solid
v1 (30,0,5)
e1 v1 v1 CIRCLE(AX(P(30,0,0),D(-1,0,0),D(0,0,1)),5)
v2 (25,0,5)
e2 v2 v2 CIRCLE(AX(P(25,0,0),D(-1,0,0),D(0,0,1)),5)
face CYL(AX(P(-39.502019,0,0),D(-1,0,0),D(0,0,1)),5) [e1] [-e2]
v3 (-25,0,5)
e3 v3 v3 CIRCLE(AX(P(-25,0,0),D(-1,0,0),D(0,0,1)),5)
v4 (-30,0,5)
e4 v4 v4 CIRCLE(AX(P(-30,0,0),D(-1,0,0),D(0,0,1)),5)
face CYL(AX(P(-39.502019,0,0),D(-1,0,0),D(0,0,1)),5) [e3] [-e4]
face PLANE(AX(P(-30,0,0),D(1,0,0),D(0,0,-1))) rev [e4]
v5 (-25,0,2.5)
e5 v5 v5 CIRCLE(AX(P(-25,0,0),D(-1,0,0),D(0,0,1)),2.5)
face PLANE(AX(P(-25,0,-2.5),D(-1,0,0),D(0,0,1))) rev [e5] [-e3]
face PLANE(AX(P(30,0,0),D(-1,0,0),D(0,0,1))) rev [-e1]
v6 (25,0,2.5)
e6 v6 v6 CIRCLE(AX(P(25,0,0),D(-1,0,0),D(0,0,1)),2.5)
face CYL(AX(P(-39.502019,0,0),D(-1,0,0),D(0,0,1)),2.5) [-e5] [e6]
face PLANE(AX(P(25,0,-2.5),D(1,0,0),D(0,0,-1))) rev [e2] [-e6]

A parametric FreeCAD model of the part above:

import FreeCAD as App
import Part
import Sketcher
from FreeCAD import Vector


def add_polygon(sketch, points):
    """Adds a closed chain of lines whose ends are joined by coincident constraints."""
    first, n = sketch.GeometryCount, len(points)
    for a, b in zip(points, points[1:] + points[:1]):
        sketch.addGeometry(Part.LineSegment(App.Vector(*a, 0), App.Vector(*b, 0)), False)
    for i in range(n):
        sketch.addConstraint(Sketcher.Constraint("Coincident", first + i, 2, first + (i + 1) % n, 1))

doc = App.newDocument("Part")
body = doc.addObject("PartDesign::Body", "Body")

# Sketch on XZ plane
sketch1 = body.newObject("Sketcher::SketchObject", "Sketch")
sketch1.AttachmentSupport = (doc.getObject("XZ_Plane"), [""])
sketch1.MapMode = "FlatFace"
add_polygon(sketch1, [(25, -5), (25, -2.5), (-25, -2.5), (-25, -5), (-30, -5), (-30, 0), (30, 0), (30, -5)])  # lines 0-7
sketch1.addConstraint([
    Sketcher.Constraint("Vertical", 0),
    Sketcher.Constraint("Horizontal", 1),
    Sketcher.Constraint("Vertical", 2),
    Sketcher.Constraint("Horizontal", 3),
    Sketcher.Constraint("Vertical", 4),
    Sketcher.Constraint("Horizontal", 5),
    Sketcher.Constraint("Vertical", 6),
    Sketcher.Constraint("Horizontal", 7),
    Sketcher.Constraint("Symmetric", 4, 2, 5, 2, -1, 1),
    Sketcher.Constraint("Symmetric", 2, 2, 7, 2, -2),
    Sketcher.Constraint("Equal", 7, 4),
    Sketcher.Constraint("DistanceX", 1, 2, 1, 1, 50.0),
    Sketcher.Constraint("DistanceX", 3, 2, 3, 1, 5.0),
    Sketcher.Constraint("DistanceY", 0, 1, 0, 2, 2.5),
])
revolution = body.newObject("PartDesign::Revolution", "Revolution")
revolution.Profile = sketch1
revolution.ReferenceAxis = (sketch1, ["H_Axis"])
revolution.Angle = 360

doc.recompute()
